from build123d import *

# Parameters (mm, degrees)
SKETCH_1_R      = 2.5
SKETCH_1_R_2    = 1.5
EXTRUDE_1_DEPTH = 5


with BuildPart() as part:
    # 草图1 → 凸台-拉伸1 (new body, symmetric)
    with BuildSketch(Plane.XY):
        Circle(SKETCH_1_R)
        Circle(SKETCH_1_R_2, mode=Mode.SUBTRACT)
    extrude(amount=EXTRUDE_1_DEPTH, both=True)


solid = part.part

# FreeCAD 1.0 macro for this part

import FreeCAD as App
import Part
import Sketcher
Q = App.Units.Quantity

doc = App.newDocument("Part")
params = doc.addObject("Spreadsheet::Sheet", "Params")
for row, (alias, value) in enumerate([
    ("sketch1_diameter", "5 mm"),
    ("sketch1_diameter2", "3 mm"),
    ("pad1_length", "10 mm"),
], start=1):
    params.set(f"A{row}", alias)
    params.set(f"B{row}", "=" + value)
    params.setAlias(f"B{row}", alias)

body = doc.addObject("PartDesign::Body", "Body")

sketch1 = body.newObject("Sketcher::SketchObject", "Sketch")
sketch1.AttachmentSupport = (doc.getObject("XY_Plane"), [""])
sketch1.MapMode = "FlatFace"
sketch1.addGeometry([
    Part.Circle(App.Vector(0, 0, 0), App.Vector(0, 0, 1), 2.5),
    Part.Circle(App.Vector(0, 0, 0), App.Vector(0, 0, 1), 1.5),
], False)
sketch1.addConstraint([
    Sketcher.Constraint("Coincident", 0, 3, -1, 1),
    Sketcher.Constraint("Coincident", 1, 3, -1, 1),
    Sketcher.Constraint("Diameter", 0, Q("5 mm")),
    Sketcher.Constraint("Diameter", 1, Q("3 mm")),
])
sketch1.setExpression("Constraints[2]", "Params.sketch1_diameter")
sketch1.setExpression("Constraints[3]", "Params.sketch1_diameter2")
pad1 = body.newObject("PartDesign::Pad", "Pad")
pad1.Profile = sketch1
pad1.setExpression("Length", "Params.pad1_length")
pad1.Midplane = True

doc.recompute()
